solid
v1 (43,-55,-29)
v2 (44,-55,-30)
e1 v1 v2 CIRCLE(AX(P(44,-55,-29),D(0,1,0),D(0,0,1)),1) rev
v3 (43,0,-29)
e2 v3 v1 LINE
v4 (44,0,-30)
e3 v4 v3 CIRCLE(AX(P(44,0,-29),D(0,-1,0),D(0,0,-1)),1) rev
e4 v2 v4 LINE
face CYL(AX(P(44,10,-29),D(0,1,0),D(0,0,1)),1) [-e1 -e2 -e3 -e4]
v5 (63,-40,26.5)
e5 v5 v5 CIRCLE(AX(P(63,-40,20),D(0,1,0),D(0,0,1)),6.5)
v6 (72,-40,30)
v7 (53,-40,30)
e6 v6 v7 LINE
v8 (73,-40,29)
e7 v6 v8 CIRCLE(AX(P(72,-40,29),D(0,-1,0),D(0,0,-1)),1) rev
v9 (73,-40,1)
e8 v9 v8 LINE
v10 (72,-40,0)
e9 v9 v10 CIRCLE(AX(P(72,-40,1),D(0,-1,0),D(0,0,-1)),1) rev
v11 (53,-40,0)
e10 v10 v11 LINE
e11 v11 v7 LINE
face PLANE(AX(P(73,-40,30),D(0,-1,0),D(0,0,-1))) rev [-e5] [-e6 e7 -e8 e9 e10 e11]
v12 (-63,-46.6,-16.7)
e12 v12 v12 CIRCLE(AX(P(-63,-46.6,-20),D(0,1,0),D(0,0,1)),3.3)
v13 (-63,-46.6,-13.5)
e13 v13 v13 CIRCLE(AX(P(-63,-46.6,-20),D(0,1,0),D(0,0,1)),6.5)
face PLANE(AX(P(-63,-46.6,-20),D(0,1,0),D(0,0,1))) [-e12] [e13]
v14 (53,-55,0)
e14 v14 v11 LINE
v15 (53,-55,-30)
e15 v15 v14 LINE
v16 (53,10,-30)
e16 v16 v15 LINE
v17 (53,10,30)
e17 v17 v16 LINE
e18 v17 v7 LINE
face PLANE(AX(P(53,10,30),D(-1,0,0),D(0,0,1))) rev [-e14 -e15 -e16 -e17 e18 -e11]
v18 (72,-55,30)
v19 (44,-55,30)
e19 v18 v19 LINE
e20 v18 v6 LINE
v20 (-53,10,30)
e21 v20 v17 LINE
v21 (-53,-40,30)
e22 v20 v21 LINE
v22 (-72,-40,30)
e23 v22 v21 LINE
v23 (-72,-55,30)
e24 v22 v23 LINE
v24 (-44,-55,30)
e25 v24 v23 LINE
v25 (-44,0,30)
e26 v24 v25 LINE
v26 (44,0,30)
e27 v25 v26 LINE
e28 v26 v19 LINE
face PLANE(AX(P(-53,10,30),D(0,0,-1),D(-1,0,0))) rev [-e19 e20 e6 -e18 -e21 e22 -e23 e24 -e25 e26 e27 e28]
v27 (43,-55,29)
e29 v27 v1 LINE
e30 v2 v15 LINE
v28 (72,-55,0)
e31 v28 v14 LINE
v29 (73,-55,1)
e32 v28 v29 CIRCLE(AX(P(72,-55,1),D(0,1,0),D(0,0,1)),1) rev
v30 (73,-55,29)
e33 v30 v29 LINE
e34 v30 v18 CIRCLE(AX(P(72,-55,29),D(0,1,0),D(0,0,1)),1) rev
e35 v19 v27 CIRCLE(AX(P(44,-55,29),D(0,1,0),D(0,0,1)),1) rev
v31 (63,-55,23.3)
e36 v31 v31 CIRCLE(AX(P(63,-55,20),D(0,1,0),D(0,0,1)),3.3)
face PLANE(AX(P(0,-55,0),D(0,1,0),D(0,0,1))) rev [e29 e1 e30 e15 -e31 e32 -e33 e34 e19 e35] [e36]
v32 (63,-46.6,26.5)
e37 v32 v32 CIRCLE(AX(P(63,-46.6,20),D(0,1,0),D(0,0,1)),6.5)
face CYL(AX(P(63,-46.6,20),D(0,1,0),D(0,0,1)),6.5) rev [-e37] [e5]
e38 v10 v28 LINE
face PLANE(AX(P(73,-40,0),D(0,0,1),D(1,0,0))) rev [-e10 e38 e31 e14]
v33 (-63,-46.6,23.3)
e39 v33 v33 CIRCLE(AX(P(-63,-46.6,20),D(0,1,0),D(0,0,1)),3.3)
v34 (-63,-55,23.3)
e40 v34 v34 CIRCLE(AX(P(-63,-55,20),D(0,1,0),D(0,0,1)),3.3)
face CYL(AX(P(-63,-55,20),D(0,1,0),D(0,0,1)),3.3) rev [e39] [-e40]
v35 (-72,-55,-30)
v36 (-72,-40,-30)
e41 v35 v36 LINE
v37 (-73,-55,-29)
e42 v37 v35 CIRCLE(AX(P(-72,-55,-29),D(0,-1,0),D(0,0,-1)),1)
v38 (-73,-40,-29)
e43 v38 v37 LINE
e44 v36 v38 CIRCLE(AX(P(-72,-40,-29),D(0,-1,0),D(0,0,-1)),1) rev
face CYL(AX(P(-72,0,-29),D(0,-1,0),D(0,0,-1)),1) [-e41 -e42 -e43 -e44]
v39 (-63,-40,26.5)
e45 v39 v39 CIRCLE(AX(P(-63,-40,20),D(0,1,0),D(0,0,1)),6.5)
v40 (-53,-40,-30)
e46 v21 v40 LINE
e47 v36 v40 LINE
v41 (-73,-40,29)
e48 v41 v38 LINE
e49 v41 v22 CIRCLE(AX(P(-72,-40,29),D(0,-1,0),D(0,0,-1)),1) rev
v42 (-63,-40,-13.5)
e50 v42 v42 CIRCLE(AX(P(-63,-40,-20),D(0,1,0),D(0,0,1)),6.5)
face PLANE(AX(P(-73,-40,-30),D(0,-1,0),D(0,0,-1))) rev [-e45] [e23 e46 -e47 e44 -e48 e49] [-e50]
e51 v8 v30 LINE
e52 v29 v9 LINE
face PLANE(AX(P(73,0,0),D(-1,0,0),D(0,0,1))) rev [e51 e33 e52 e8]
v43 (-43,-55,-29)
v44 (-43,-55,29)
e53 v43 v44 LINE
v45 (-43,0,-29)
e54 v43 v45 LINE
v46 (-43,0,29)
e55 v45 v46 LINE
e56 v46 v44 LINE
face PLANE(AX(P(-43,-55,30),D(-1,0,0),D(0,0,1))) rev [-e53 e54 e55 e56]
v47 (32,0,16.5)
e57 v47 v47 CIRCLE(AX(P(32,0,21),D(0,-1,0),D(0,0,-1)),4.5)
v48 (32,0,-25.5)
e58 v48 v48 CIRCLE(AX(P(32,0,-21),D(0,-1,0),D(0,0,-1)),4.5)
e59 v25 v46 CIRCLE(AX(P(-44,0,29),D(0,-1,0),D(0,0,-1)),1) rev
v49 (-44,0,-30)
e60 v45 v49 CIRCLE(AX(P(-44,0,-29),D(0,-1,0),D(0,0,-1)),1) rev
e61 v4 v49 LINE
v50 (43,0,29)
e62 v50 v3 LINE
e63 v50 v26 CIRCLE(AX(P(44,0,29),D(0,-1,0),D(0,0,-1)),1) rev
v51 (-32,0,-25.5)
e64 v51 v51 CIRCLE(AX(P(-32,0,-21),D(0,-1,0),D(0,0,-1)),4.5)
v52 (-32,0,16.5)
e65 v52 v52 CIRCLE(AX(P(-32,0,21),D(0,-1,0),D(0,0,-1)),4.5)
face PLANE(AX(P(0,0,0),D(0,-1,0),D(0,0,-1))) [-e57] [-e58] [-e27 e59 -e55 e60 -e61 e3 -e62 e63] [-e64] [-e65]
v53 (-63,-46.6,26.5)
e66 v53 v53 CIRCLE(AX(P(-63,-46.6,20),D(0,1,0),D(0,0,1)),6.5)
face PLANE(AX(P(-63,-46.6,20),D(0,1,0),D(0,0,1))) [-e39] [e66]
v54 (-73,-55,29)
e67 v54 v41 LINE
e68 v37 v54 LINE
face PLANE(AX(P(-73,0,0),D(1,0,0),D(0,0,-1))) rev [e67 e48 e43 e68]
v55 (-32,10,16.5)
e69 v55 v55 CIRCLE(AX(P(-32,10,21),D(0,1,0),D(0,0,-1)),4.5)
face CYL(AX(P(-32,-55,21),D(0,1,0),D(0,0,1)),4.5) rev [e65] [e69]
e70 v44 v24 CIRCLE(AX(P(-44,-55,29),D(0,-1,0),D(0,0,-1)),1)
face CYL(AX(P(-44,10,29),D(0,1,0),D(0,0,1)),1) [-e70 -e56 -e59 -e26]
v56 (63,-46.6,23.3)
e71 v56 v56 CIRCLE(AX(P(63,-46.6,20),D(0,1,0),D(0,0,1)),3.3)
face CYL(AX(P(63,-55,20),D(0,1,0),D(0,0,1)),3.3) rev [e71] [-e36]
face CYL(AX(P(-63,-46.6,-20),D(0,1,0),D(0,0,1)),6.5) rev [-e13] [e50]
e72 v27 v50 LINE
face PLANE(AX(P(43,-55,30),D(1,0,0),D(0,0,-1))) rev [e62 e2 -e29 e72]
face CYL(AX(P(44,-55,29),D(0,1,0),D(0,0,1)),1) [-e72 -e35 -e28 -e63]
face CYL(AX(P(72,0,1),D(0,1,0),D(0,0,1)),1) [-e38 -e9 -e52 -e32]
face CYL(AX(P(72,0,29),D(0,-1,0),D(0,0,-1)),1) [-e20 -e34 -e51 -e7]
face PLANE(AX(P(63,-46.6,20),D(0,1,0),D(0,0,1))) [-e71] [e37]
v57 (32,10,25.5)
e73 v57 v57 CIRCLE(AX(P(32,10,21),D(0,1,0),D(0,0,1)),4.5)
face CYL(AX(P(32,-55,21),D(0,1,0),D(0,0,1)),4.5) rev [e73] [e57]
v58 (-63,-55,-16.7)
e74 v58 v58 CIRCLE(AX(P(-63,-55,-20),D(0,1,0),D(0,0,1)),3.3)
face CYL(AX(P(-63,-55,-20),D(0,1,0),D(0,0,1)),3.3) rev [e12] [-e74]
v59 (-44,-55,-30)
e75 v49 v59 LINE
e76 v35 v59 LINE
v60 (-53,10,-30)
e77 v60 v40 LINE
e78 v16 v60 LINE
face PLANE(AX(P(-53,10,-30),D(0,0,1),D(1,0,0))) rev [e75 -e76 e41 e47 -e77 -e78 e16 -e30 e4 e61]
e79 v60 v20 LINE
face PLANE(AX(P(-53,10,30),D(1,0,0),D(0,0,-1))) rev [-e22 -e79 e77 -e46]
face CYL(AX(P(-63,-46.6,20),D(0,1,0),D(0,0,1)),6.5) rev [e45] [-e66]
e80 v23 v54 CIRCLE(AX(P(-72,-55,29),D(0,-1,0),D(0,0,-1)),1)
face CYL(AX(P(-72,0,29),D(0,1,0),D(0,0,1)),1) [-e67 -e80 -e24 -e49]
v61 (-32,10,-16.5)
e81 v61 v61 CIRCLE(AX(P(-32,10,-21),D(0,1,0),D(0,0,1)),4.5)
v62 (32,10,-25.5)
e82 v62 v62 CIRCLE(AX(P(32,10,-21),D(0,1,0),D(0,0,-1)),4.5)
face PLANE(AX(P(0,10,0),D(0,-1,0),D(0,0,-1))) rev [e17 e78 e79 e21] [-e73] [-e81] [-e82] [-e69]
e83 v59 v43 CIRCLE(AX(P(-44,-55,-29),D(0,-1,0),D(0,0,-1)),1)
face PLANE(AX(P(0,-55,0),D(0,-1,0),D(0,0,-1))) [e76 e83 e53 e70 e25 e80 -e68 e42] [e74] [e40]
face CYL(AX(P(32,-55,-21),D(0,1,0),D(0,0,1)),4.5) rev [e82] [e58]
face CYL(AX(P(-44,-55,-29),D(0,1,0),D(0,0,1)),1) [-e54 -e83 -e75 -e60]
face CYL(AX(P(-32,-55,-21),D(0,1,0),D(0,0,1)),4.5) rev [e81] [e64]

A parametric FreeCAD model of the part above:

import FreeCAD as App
import Part
import Sketcher


def edges_at(feature, points):
    """Names of the edges that pass closest to the given points."""
    edges = feature.Shape.Edges
    near = lambda p: min(range(len(edges)), key=lambda i: edges[i].distToShape(Part.Vertex(*p))[0])
    return sorted({f"Edge{near(p) + 1}" for p in points})


def add_polygon(sketch, points):
    """Adds a closed chain of lines whose ends are joined by coincident constraints."""
    first, n = sketch.GeometryCount, len(points)
    for a, b in zip(points, points[1:] + points[:1]):
        sketch.addGeometry(Part.LineSegment(App.Vector(*a, 0), App.Vector(*b, 0)), False)
    for i in range(n):
        sketch.addConstraint(Sketcher.Constraint("Coincident", first + i, 2, first + (i + 1) % n, 1))

doc = App.newDocument("Part")
body = doc.addObject("PartDesign::Body", "Body")

sketch1 = doc.addObject("Sketcher::SketchObject", "Sketch")
body.addObject(sketch1)
sketch1.AttachmentSupport = (doc.XZ_Plane, [""])
sketch1.MapMode = "FlatFace"
add_polygon(sketch1, [(-53, -30), (-53, 30), (53, 30), (53, -30)])
sketch1.addConstraint(Sketcher.Constraint("Vertical", 0))
sketch1.addConstraint(Sketcher.Constraint("Horizontal", 1))
sketch1.addConstraint(Sketcher.Constraint("Vertical", 2))
sketch1.addConstraint(Sketcher.Constraint("Horizontal", 3))
sketch1.addConstraint(Sketcher.Constraint("Symmetric", 0, 2, 2, 2, -1, 1))
sketch1.addConstraint(Sketcher.Constraint("DistanceX", 1, 1, 1, 2, 106.0))
sketch1.addConstraint(Sketcher.Constraint("DistanceY", 0, 1, 0, 2, 60.0))
pad1 = doc.addObject("PartDesign::Pad", "Pad")
body.addObject(pad1)
pad1.Profile = sketch1
pad1.Length = 10
pad1.Reversed = True

sketch2 = doc.addObject("Sketcher::SketchObject", "Sketch001")
body.addObject(sketch2)
sketch2.AttachmentSupport = (doc.XZ_Plane, [""])
sketch2.MapMode = "FlatFace"
add_polygon(sketch2, [(-53, 30), (-53, -30), (-43, -30), (-43, 30)])
add_polygon(sketch2, [(43, 30), (43, -30), (53, -30), (53, 30)])
sketch2.addConstraint(Sketcher.Constraint("Vertical", 0))
sketch2.addConstraint(Sketcher.Constraint("Horizontal", 1))
sketch2.addConstraint(Sketcher.Constraint("Vertical", 2))
sketch2.addConstraint(Sketcher.Constraint("Horizontal", 3))
sketch2.addConstraint(Sketcher.Constraint("Vertical", 4))
sketch2.addConstraint(Sketcher.Constraint("Horizontal", 5))
sketch2.addConstraint(Sketcher.Constraint("Vertical", 6))
sketch2.addConstraint(Sketcher.Constraint("Horizontal", 7))
sketch2.addConstraint(Sketcher.Constraint("Symmetric", 2, 2, 4, 2, -1, 1))
sketch2.addConstraint(Sketcher.Constraint("Symmetric", 0, 2, 6, 2, -1, 1))
sketch2.addConstraint(Sketcher.Constraint("Horizontal", 1, 2, 4, 2))
sketch2.addConstraint(Sketcher.Constraint("DistanceX", 1, 1, 1, 2, 10.0))
sketch2.addConstraint(Sketcher.Constraint("DistanceY", 0, 2, 0, 1, 60.0))
sketch2.addConstraint(Sketcher.Constraint("DistanceX", 0, 2, -1, 1, 53.0))
pad2 = doc.addObject("PartDesign::Pad", "Pad001")
body.addObject(pad2)
pad2.Profile = sketch2
pad2.Length = 55

sketch3 = doc.addObject("Sketcher::SketchObject", "Sketch002")
body.addObject(sketch3)
sketch3.AttachmentSupport = (doc.YZ_Plane, [""])
sketch3.MapMode = "FlatFace"
sketch3.AttachmentOffset = App.Placement(App.Vector(0, 0, 53), App.Rotation())
add_polygon(sketch3, [(-40, 30), (-55, 30), (-55, 0), (-40, 0)])
sketch3.addConstraint(Sketcher.Constraint("Horizontal", 0))
sketch3.addConstraint(Sketcher.Constraint("Vertical", 1))
sketch3.addConstraint(Sketcher.Constraint("Horizontal", 2))
sketch3.addConstraint(Sketcher.Constraint("Vertical", 3))
sketch3.addConstraint(Sketcher.Constraint("PointOnObject", 1, 2, -1))
sketch3.addConstraint(Sketcher.Constraint("DistanceX", 0, 2, 0, 1, 15.0))
sketch3.addConstraint(Sketcher.Constraint("DistanceY", 1, 2, 1, 1, 30.0))
sketch3.addConstraint(Sketcher.Constraint("DistanceX", 0, 2, -1, 1, 55.0))
pad3 = doc.addObject("PartDesign::Pad", "Pad002")
body.addObject(pad3)
pad3.Profile = sketch3
pad3.Length = 20

sketch4 = doc.addObject("Sketcher::SketchObject", "Sketch003")
body.addObject(sketch4)
sketch4.AttachmentSupport = (doc.YZ_Plane, [""])
sketch4.MapMode = "FlatFace"
sketch4.AttachmentOffset = App.Placement(App.Vector(0, 0, -53), App.Rotation())
add_polygon(sketch4, [(-40, -30), (-55, -30), (-55, 30), (-40, 30)])
sketch4.addConstraint(Sketcher.Constraint("Horizontal", 0))
sketch4.addConstraint(Sketcher.Constraint("Vertical", 1))
sketch4.addConstraint(Sketcher.Constraint("Horizontal", 2))
sketch4.addConstraint(Sketcher.Constraint("Vertical", 3))
sketch4.addConstraint(Sketcher.Constraint("DistanceX", 0, 2, 0, 1, 15.0))
sketch4.addConstraint(Sketcher.Constraint("DistanceY", 1, 1, 1, 2, 60.0))
sketch4.addConstraint(Sketcher.Constraint("DistanceX", 0, 2, -1, 1, 55.0))
sketch4.addConstraint(Sketcher.Constraint("DistanceY", 0, 2, -1, 1, 30.0))
pad4 = doc.addObject("PartDesign::Pad", "Pad003")
body.addObject(pad4)
pad4.Profile = sketch4
pad4.Length = 20
pad4.Reversed = True

sketch5 = doc.addObject("Sketcher::SketchObject", "Sketch004")
body.addObject(sketch5)
sketch5.AttachmentSupport = (doc.XZ_Plane, [""])
sketch5.MapMode = "FlatFace"
sketch5.AttachmentOffset = App.Placement(App.Vector(0, 0, -10), App.Rotation())
sketch5.addGeometry(Part.Circle(App.Vector(-32, -21, 0), App.Vector(0, 0, 1), 4.5), False)
sketch5.addGeometry(Part.Circle(App.Vector(32, -21, 0), App.Vector(0, 0, 1), 4.5), False)
sketch5.addGeometry(Part.Circle(App.Vector(32, 21, 0), App.Vector(0, 0, 1), 4.5), False)
sketch5.addGeometry(Part.Circle(App.Vector(-32, 21, 0), App.Vector(0, 0, 1), 4.5), False)
sketch5.addConstraint(Sketcher.Constraint("Equal", 0, 1))
sketch5.addConstraint(Sketcher.Constraint("Equal", 1, 2))
sketch5.addConstraint(Sketcher.Constraint("Equal", 2, 3))
sketch5.addConstraint(Sketcher.Constraint("Symmetric", 0, 3, 2, 3, -1, 1))
sketch5.addConstraint(Sketcher.Constraint("Symmetric", 1, 3, 3, 3, -1, 1))
sketch5.addConstraint(Sketcher.Constraint("Symmetric", 0, 3, 1, 3, -2))
sketch5.addConstraint(Sketcher.Constraint("Diameter", 0, 9.0))
sketch5.addConstraint(Sketcher.Constraint("DistanceX", 0, 3, -1, 1, 32.0))
sketch5.addConstraint(Sketcher.Constraint("DistanceY", 0, 3, -1, 1, 21.0))
pocket1 = doc.addObject("PartDesign::Pocket", "Pocket")
body.addObject(pocket1)
pocket1.Profile = sketch5
pocket1.Type = "ThroughAll"
pocket1.Reversed = True

sketch6 = doc.addObject("Sketcher::SketchObject", "Sketch005")
body.addObject(sketch6)
sketch6.AttachmentSupport = (doc.XZ_Plane, [""])
sketch6.MapMode = "FlatFace"
sketch6.AttachmentOffset = App.Placement(App.Vector(0, 0, 40), App.Rotation())
sketch6.addGeometry(Part.Circle(App.Vector(63, 20, 0), App.Vector(0, 0, 1), 6), False)
sketch6.addGeometry(Part.Circle(App.Vector(-63, -20, 0), App.Vector(0, 0, 1), 6), False)
sketch6.addGeometry(Part.Circle(App.Vector(-63, 20, 0), App.Vector(0, 0, 1), 6), False)
sketch6.addConstraint(Sketcher.Constraint("Equal", 0, 1))
sketch6.addConstraint(Sketcher.Constraint("Equal", 1, 2))
sketch6.addConstraint(Sketcher.Constraint("Symmetric", 0, 3, 1, 3, -1, 1))
sketch6.addConstraint(Sketcher.Constraint("Symmetric", 0, 3, 2, 3, -2))
sketch6.addConstraint(Sketcher.Constraint("Diameter", 0, 13.0))
sketch6.addConstraint(Sketcher.Constraint("DistanceX", -1, 1, 0, 3, 63.0))
sketch6.addConstraint(Sketcher.Constraint("DistanceY", -1, 1, 0, 3, 20.0))
pocket2 = doc.addObject("PartDesign::Pocket", "Pocket001")
body.addObject(pocket2)
pocket2.Profile = sketch6
pocket2.Length = 6.6
pocket2.Reversed = True

sketch7 = doc.addObject("Sketcher::SketchObject", "Sketch006")
body.addObject(sketch7)
sketch7.AttachmentSupport = (doc.XZ_Plane, [""])
sketch7.MapMode = "FlatFace"
sketch7.AttachmentOffset = App.Placement(App.Vector(0, 0, 46.6), App.Rotation())
sketch7.addGeometry(Part.Circle(App.Vector(-63, -20, 0), App.Vector(0, 0, 1), 3.3), False)
sketch7.addGeometry(Part.Circle(App.Vector(-63, 20, 0), App.Vector(0, 0, 1), 3.3), False)
sketch7.addGeometry(Part.Circle(App.Vector(63, 20, 0), App.Vector(0, 0, 1), 3.3), False)
sketch7.addConstraint(Sketcher.Constraint("Equal", 0, 1))
sketch7.addConstraint(Sketcher.Constraint("Equal", 1, 2))
sketch7.addConstraint(Sketcher.Constraint("Symmetric", 0, 3, 2, 3, -1, 1))
sketch7.addConstraint(Sketcher.Constraint("Symmetric", 1, 3, 2, 3, -2))
sketch7.addConstraint(Sketcher.Constraint("Diameter", 0, 6.6))
sketch7.addConstraint(Sketcher.Constraint("DistanceX", 0, 3, -1, 1, 63.0))
sketch7.addConstraint(Sketcher.Constraint("DistanceY", 0, 3, -1, 1, 20.0))
pocket3 = doc.addObject("PartDesign::Pocket", "Pocket002")
body.addObject(pocket3)
pocket3.Profile = sketch7
pocket3.Type = "ThroughAll"
pocket3.Reversed = True
doc.recompute()

fillet = doc.addObject("PartDesign::Fillet", "Fillet")
body.addObject(fillet)
fillet.Base = (pocket3, edges_at(pocket3, [
    (-43, -27.5, -30),
    (-43, -27.5, 30),
    (43, -27.5, 30),
    (43, -27.5, -30),
    (73, -47.5, 30),
    (73, -47.5, 0),
    (-73, -47.5, -30),
    (-73, -47.5, 30),
]))
fillet.Radius = 1

doc.recompute()
